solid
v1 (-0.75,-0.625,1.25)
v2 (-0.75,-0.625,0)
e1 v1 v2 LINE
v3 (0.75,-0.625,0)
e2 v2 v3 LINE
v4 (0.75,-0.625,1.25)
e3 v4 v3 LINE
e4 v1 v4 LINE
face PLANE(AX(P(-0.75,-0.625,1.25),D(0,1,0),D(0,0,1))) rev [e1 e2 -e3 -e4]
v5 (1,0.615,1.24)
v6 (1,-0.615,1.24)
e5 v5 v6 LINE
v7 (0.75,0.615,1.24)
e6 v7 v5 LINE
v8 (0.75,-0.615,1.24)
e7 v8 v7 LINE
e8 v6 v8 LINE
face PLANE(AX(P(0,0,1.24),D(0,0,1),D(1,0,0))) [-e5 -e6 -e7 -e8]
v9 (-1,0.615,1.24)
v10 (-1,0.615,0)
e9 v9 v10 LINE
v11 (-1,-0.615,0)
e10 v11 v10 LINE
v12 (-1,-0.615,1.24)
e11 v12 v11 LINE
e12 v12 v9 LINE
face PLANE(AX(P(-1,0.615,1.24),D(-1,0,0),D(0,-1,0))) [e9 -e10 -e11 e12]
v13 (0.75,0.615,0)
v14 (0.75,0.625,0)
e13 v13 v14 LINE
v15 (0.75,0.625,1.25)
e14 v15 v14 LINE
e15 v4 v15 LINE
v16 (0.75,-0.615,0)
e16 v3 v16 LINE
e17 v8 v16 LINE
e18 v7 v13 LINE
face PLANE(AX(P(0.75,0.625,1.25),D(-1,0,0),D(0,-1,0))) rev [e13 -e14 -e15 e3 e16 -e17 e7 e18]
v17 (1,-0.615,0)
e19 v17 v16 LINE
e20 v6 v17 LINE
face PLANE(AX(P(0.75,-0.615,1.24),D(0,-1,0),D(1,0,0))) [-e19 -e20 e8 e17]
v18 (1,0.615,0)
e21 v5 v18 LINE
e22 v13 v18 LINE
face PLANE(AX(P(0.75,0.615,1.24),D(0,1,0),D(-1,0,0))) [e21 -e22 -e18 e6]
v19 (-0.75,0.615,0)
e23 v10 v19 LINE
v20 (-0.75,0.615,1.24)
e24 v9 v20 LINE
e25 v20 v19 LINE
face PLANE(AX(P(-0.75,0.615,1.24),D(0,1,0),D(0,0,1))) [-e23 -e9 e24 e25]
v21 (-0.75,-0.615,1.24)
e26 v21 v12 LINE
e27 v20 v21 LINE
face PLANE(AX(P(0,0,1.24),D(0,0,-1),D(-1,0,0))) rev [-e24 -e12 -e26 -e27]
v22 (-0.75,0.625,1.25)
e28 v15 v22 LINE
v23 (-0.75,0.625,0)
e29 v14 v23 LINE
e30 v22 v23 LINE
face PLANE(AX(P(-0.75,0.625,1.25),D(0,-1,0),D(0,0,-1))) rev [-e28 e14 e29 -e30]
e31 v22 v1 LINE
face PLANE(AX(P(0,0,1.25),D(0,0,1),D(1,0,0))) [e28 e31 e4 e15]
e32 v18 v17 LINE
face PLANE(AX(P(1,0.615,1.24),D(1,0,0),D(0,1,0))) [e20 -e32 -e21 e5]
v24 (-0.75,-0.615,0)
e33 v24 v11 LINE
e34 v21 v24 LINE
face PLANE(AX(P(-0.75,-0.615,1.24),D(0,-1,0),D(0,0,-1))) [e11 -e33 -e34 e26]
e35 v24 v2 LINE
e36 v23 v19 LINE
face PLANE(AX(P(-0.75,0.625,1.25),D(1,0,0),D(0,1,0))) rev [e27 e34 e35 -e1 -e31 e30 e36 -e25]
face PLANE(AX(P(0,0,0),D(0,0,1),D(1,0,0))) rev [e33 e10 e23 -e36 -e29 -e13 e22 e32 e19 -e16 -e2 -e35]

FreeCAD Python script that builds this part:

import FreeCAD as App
import Part
import Sketcher
from FreeCAD import Vector
Q = App.Units.Quantity

doc = App.newDocument("Part")
body = doc.addObject("PartDesign::Body", "Body")

sketch1 = body.newObject("Sketcher::SketchObject", "Sketch")
sketch1.AttachmentSupport = (doc.getObject("XY_Plane"), [""])
sketch1.MapMode = "FlatFace"
sketch1.addGeometry(Part.LineSegment(Vector(-0.8, 0.6, 0), Vector(-0.8, -0.6, 0)), False)
sketch1.addGeometry(Part.LineSegment(Vector(-0.8, -0.6, 0), Vector(0.8, -0.6, 0)), False)
sketch1.addGeometry(Part.LineSegment(Vector(0.8, -0.6, 0), Vector(0.8, 0.6, 0)), False)
sketch1.addGeometry(Part.LineSegment(Vector(0.8, 0.6, 0), Vector(-0.8, 0.6, 0)), False)
sketch1.addConstraint(Sketcher.Constraint("Coincident", 0, 2, 1, 1))
sketch1.addConstraint(Sketcher.Constraint("Coincident", 1, 2, 2, 1))
sketch1.addConstraint(Sketcher.Constraint("Coincident", 2, 2, 3, 1))
sketch1.addConstraint(Sketcher.Constraint("Coincident", 3, 2, 0, 1))
sketch1.addConstraint(Sketcher.Constraint("Vertical", 0))
sketch1.addConstraint(Sketcher.Constraint("Horizontal", 1))
sketch1.addConstraint(Sketcher.Constraint("Vertical", 2))
sketch1.addConstraint(Sketcher.Constraint("Horizontal", 3))
sketch1.addConstraint(Sketcher.Constraint("Symmetric", 0, 2, 2, 2, -1, 1))
sketch1.addConstraint(Sketcher.Constraint("DistanceX", 1, 1, 1, 2, Q("1.5 mm")))
sketch1.addConstraint(Sketcher.Constraint("DistanceY", 0, 2, 0, 1, Q("1.25 mm")))
pad1 = body.newObject("PartDesign::Pad", "Pad")
pad1.Profile = sketch1
pad1.Length = 1.25

sketch2 = body.newObject("Sketcher::SketchObject", "Sketch001")
sketch2.AttachmentSupport = (doc.getObject("XY_Plane"), [""])
sketch2.MapMode = "FlatFace"
sketch2.addGeometry(Part.LineSegment(Vector(1, 0.61, 0), Vector(1, -0.61, 0)), False)
sketch2.addGeometry(Part.LineSegment(Vector(1, -0.61, 0), Vector(0.75, -0.61, 0)), False)
sketch2.addGeometry(Part.LineSegment(Vector(0.75, -0.61, 0), Vector(0.75, 0.61, 0)), False)
sketch2.addGeometry(Part.LineSegment(Vector(0.75, 0.61, 0), Vector(1, 0.61, 0)), False)
sketch2.addGeometry(Part.LineSegment(Vector(-0.75, 0.61, 0), Vector(-0.75, -0.61, 0)), False)
sketch2.addGeometry(Part.LineSegment(Vector(-0.75, -0.61, 0), Vector(-1, -0.61, 0)), False)
sketch2.addGeometry(Part.LineSegment(Vector(-1, -0.61, 0), Vector(-1, 0.61, 0)), False)
sketch2.addGeometry(Part.LineSegment(Vector(-1, 0.61, 0), Vector(-0.75, 0.61, 0)), False)
sketch2.addConstraint(Sketcher.Constraint("Coincident", 0, 2, 1, 1))
sketch2.addConstraint(Sketcher.Constraint("Coincident", 1, 2, 2, 1))
sketch2.addConstraint(Sketcher.Constraint("Coincident", 2, 2, 3, 1))
sketch2.addConstraint(Sketcher.Constraint("Coincident", 3, 2, 0, 1))
sketch2.addConstraint(Sketcher.Constraint("Coincident", 4, 2, 5, 1))
sketch2.addConstraint(Sketcher.Constraint("Coincident", 5, 2, 6, 1))
sketch2.addConstraint(Sketcher.Constraint("Coincident", 6, 2, 7, 1))
sketch2.addConstraint(Sketcher.Constraint("Coincident", 7, 2, 4, 1))
sketch2.addConstraint(Sketcher.Constraint("Vertical", 0))
sketch2.addConstraint(Sketcher.Constraint("Horizontal", 1))
sketch2.addConstraint(Sketcher.Constraint("Vertical", 2))
sketch2.addConstraint(Sketcher.Constraint("Horizontal", 3))
sketch2.addConstraint(Sketcher.Constraint("Vertical", 4))
sketch2.addConstraint(Sketcher.Constraint("Horizontal", 5))
sketch2.addConstraint(Sketcher.Constraint("Vertical", 6))
sketch2.addConstraint(Sketcher.Constraint("Horizontal", 7))
sketch2.addConstraint(Sketcher.Constraint("Symmetric", 2, 2, 4, 2, -1, 1))
sketch2.addConstraint(Sketcher.Constraint("Symmetric", 0, 2, 6, 2, -1, 1))
sketch2.addConstraint(Sketcher.Constraint("Horizontal", 1, 2, 4, 2))
sketch2.addConstraint(Sketcher.Constraint("DistanceX", -1, 1, 0, 2, Q("1 mm")))
sketch2.addConstraint(Sketcher.Constraint("DistanceX", 1, 2, 1, 1, Q("0.25 mm")))
sketch2.addConstraint(Sketcher.Constraint("DistanceY", 0, 2, 0, 1, Q("1.23 mm")))
pad2 = body.newObject("PartDesign::Pad", "Pad001")
pad2.Profile = sketch2
pad2.Length = 1.24

doc.recompute()
